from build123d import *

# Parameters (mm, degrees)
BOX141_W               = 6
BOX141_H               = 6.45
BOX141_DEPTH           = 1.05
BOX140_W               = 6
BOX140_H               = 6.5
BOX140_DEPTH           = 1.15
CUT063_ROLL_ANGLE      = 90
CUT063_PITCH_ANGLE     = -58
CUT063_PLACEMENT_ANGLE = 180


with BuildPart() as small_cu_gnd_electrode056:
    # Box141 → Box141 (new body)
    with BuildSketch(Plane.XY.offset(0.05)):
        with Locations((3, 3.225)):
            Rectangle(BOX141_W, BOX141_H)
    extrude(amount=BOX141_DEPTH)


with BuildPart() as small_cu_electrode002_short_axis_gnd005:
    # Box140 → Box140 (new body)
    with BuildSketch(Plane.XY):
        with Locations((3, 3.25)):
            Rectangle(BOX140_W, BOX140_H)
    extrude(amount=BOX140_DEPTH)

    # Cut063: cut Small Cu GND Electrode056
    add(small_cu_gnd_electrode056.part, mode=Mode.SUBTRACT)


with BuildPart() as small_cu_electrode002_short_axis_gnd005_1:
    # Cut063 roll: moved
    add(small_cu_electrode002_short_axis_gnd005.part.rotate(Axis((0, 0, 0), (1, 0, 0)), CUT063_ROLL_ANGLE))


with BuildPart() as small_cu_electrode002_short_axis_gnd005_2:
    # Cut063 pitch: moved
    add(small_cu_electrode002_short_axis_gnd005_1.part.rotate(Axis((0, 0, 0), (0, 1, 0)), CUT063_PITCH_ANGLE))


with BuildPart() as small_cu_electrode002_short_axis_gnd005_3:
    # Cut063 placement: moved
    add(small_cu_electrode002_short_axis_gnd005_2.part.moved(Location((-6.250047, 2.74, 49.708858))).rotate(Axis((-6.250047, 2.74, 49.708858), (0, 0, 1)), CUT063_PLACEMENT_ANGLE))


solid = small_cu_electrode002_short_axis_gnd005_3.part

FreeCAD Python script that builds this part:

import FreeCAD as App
import Part
import Sketcher

V = App.Vector
Q = App.Units.Quantity

doc = App.newDocument("Part")
body = doc.addObject("PartDesign::Body", "Body")

# Sketch on XY plane
sketch1 = body.newObject("Sketcher::SketchObject", "Sketch")
sketch1.AttachmentSupport = (doc.getObject("XY_Plane"), [""])
sketch1.MapMode = "FlatFace"
sketch1.AttachmentOffset = App.Placement(V(0, 0, 0.05), App.Rotation())
sketch1.addGeometry([
    Part.LineSegment(V(0, 6.45, 0), V(0, 0, 0)),
    Part.LineSegment(V(0, 0, 0), V(6, 0, 0)),
    Part.LineSegment(V(6, 0, 0), V(6, 6.45, 0)),
    Part.LineSegment(V(6, 6.45, 0), V(0, 6.45, 0)),
], False)
sketch1.addConstraint([
    Sketcher.Constraint("Coincident", 0, 2, 1, 1),
    Sketcher.Constraint("Coincident", 1, 2, 2, 1),
    Sketcher.Constraint("Coincident", 2, 2, 3, 1),
    Sketcher.Constraint("Coincident", 3, 2, 0, 1),
    Sketcher.Constraint("Vertical", 0),
    Sketcher.Constraint("Horizontal", 1),
    Sketcher.Constraint("Vertical", 2),
    Sketcher.Constraint("Horizontal", 3),
    Sketcher.Constraint("Coincident", 0, 2, -1, 1),
    Sketcher.Constraint("DistanceX", 1, 1, 1, 2, Q("6 mm")),
    Sketcher.Constraint("DistanceY", 0, 2, 0, 1, Q("6.45 mm")),
])
pad1 = body.newObject("PartDesign::Pad", "Pad")
pad1.Profile = sketch1
pad1.Length = 1.05
body2 = doc.addObject("PartDesign::Body", "Body001")

# Sketch on XY plane
sketch2 = body2.newObject("Sketcher::SketchObject", "Sketch001")
sketch2.AttachmentSupport = (doc.getObject("XY_Plane001"), [""])
sketch2.MapMode = "FlatFace"
sketch2.addGeometry([
    Part.LineSegment(V(0, 6.5, 0), V(0, 0, 0)),
    Part.LineSegment(V(0, 0, 0), V(6, 0, 0)),
    Part.LineSegment(V(6, 0, 0), V(6, 6.5, 0)),
    Part.LineSegment(V(6, 6.5, 0), V(0, 6.5, 0)),
], False)
sketch2.addConstraint([
    Sketcher.Constraint("Coincident", 0, 2, 1, 1),
    Sketcher.Constraint("Coincident", 1, 2, 2, 1),
    Sketcher.Constraint("Coincident", 2, 2, 3, 1),
    Sketcher.Constraint("Coincident", 3, 2, 0, 1),
    Sketcher.Constraint("Vertical", 0),
    Sketcher.Constraint("Horizontal", 1),
    Sketcher.Constraint("Vertical", 2),
    Sketcher.Constraint("Horizontal", 3),
    Sketcher.Constraint("Coincident", 0, 2, -1, 1),
    Sketcher.Constraint("DistanceX", 1, 1, 1, 2, Q("6 mm")),
    Sketcher.Constraint("DistanceY", 0, 2, 0, 1, Q("6.5 mm")),
])
pad2 = body2.newObject("PartDesign::Pad", "Pad001")
pad2.Profile = sketch2
pad2.Length = 1.15
doc.recompute()

boolean = body2.newObject("PartDesign::Boolean", "Boolean")
boolean.Type = "Cut"
boolean.addObjects([body])
body3 = doc.addObject("PartDesign::Body", "Body002")
doc.recompute()

body2.Placement = App.Placement(V(0, 0, 0), App.Rotation(V(1, 0, 0), 90))
boolean2 = body3.newObject("PartDesign::Boolean", "Boolean001")
boolean2.Type = "Fuse"
boolean2.addObjects([body2])
body4 = doc.addObject("PartDesign::Body", "Body003")
doc.recompute()

body3.Placement = App.Placement(V(0, 0, 0), App.Rotation(V(0, 1, 0), 302))
boolean3 = body4.newObject("PartDesign::Boolean", "Boolean002")
boolean3.Type = "Fuse"
boolean3.addObjects([body3])
body5 = doc.addObject("PartDesign::Body", "Body004")
doc.recompute()

body4.Placement = App.Placement(V(-6.250047, 2.74, 49.708858), App.Rotation(V(0, 0, 1), 180))
boolean4 = body5.newObject("PartDesign::Boolean", "Boolean003")
boolean4.Type = "Fuse"
boolean4.addObjects([body4])

doc.recompute()
